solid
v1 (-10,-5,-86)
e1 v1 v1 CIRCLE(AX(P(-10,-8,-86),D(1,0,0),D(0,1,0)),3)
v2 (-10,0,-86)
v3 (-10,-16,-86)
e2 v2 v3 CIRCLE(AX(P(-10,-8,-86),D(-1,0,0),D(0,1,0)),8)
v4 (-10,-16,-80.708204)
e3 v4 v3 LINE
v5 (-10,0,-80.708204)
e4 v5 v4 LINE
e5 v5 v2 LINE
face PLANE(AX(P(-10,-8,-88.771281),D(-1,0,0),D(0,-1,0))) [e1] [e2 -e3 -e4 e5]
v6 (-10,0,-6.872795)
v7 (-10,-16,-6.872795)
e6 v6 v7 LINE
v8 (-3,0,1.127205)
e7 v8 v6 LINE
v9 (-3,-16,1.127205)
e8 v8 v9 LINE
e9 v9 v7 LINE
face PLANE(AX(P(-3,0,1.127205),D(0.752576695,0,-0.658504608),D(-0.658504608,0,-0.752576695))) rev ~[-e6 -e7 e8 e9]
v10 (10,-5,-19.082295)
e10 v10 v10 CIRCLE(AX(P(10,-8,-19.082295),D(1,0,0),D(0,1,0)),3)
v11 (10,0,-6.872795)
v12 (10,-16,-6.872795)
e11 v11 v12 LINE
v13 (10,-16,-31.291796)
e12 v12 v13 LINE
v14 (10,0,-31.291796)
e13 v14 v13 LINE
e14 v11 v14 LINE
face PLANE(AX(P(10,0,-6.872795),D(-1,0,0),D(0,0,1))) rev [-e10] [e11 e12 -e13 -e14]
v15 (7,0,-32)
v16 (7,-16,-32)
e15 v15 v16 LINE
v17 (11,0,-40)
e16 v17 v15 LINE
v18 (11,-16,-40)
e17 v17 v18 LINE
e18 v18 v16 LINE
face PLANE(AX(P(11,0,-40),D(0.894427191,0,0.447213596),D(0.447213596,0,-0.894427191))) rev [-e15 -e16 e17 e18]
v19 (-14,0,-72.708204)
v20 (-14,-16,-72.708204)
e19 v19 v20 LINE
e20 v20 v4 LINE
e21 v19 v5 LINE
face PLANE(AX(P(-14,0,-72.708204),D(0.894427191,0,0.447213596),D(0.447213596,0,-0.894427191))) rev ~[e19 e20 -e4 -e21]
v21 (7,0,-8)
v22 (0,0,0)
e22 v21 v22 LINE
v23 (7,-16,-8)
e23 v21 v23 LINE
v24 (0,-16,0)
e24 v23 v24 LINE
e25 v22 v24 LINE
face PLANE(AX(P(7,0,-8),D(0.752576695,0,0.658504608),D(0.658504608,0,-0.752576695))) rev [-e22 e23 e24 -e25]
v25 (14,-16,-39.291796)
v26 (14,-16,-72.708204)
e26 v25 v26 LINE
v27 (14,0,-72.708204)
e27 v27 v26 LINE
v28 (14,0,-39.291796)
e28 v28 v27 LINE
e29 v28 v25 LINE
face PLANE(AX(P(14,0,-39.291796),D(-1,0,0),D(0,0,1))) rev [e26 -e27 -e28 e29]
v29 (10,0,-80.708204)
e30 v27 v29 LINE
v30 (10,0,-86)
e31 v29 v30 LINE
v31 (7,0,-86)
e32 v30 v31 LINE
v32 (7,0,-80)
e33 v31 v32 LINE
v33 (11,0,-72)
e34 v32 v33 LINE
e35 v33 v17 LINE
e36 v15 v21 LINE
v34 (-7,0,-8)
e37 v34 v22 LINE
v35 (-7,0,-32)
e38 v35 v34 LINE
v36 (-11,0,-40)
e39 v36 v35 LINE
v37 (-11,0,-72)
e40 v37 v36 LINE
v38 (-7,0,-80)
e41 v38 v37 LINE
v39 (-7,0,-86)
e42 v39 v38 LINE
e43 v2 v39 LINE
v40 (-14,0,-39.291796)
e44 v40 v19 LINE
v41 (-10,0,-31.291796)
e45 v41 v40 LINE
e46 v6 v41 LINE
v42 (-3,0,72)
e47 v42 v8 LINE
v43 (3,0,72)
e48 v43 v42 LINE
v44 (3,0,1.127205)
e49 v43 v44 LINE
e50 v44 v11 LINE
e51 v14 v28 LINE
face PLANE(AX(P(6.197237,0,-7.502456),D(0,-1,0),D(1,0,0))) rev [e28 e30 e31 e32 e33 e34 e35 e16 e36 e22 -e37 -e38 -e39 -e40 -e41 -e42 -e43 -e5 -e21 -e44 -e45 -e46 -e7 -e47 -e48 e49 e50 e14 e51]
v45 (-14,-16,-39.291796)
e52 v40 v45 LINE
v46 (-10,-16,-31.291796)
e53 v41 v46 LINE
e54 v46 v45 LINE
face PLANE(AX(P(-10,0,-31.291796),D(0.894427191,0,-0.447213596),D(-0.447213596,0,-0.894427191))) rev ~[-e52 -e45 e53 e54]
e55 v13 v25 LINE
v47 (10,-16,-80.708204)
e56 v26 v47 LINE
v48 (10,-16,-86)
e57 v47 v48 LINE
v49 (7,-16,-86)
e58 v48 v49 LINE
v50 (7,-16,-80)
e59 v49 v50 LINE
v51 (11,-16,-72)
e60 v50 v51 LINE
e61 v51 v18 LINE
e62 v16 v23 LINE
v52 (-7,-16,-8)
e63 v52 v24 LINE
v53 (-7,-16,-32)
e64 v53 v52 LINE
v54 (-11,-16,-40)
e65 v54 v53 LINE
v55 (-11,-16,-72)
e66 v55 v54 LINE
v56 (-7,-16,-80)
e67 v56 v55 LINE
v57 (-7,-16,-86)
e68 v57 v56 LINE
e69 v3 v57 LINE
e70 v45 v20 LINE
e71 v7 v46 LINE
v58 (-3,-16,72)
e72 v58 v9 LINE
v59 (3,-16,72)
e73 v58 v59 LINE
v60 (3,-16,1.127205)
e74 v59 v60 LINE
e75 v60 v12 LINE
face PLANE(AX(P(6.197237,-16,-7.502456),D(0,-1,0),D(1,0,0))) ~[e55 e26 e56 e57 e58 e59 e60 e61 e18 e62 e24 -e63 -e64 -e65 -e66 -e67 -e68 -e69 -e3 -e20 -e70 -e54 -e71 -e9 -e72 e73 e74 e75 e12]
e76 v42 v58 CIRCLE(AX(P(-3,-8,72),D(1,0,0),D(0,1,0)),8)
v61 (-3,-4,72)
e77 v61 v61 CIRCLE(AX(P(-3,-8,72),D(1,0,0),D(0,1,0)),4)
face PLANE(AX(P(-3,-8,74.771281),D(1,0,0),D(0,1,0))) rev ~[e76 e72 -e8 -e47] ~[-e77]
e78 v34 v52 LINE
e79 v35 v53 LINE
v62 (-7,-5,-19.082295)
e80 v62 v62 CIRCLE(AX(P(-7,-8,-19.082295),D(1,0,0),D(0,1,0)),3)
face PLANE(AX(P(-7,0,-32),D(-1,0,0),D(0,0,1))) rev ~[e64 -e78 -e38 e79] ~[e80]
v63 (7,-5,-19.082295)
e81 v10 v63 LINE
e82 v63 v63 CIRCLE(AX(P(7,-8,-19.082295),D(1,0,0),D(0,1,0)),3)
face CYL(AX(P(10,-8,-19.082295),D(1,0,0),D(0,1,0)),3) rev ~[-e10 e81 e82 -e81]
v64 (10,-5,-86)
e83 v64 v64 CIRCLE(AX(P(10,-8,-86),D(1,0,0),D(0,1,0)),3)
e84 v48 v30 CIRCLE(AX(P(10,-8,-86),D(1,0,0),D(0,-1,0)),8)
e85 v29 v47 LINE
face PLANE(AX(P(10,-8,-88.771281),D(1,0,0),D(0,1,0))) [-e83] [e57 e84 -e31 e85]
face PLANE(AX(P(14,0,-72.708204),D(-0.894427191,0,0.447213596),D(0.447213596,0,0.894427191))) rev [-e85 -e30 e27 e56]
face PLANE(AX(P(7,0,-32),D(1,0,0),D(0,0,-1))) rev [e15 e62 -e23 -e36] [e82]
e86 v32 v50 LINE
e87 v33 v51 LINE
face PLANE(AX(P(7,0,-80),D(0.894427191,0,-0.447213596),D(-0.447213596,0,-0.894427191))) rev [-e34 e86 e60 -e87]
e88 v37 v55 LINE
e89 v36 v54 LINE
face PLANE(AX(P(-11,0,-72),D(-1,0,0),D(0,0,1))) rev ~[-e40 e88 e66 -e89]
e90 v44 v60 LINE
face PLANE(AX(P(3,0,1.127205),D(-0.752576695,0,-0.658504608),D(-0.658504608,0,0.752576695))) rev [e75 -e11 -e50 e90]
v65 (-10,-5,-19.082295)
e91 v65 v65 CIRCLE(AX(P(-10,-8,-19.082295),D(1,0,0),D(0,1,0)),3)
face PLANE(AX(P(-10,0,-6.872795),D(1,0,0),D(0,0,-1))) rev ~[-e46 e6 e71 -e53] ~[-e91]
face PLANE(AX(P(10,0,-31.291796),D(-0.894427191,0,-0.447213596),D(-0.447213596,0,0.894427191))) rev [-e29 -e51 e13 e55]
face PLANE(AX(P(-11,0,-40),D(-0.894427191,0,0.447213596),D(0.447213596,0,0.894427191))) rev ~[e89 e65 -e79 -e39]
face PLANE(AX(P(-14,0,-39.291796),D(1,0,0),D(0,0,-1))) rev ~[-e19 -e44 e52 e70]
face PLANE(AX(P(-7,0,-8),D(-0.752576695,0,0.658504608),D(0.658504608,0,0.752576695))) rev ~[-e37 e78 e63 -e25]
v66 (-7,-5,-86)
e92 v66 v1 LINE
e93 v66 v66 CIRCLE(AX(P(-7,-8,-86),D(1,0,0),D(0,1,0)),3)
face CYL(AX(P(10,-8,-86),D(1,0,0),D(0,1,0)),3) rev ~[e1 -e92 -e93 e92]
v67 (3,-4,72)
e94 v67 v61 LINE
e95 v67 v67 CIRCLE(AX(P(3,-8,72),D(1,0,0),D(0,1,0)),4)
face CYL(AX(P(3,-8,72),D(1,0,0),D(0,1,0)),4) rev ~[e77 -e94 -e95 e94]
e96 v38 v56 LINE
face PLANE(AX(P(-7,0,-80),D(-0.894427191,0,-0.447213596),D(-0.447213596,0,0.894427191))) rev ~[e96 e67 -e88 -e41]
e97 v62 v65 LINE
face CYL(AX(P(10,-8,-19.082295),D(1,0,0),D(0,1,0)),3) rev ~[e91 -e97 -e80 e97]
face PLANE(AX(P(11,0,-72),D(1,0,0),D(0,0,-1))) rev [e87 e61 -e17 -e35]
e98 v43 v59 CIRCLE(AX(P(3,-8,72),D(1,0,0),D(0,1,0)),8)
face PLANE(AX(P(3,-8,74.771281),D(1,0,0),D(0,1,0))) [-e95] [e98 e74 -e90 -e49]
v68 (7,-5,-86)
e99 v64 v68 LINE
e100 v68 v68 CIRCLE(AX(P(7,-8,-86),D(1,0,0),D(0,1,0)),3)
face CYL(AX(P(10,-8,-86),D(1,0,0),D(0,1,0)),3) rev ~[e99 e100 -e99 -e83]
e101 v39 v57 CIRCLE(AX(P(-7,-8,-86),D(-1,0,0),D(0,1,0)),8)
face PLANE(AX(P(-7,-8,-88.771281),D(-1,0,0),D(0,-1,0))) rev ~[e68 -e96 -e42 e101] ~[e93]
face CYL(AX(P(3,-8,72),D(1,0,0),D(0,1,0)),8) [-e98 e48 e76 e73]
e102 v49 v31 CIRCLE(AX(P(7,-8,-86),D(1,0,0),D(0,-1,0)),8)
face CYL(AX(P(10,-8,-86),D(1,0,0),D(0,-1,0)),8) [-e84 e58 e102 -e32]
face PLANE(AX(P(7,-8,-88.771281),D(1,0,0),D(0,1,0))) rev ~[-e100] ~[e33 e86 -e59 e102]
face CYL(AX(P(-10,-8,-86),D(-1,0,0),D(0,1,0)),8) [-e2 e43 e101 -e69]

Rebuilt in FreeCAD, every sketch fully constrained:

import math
import FreeCAD as App
import Part
import Sketcher

V = App.Vector
Q = App.Units.Quantity

doc = App.newDocument("Part")
body = doc.addObject("PartDesign::Body", "Body")

sketch1 = body.newObject("Sketcher::SketchObject", "Sketch")
sketch1.AttachmentSupport = (doc.getObject("XZ_Plane"), [""])
sketch1.MapMode = "FlatFace"
sketch1.addGeometry(Part.LineSegment(V(0, 0, 0), V(0, 72, 0)), False)
sketch1.addGeometry(Part.LineSegment(V(0, 72, 0), V(-3, 72, 0)), False)
sketch1.addGeometry(Part.LineSegment(V(-3, 72, 0), V(-3, 1.127205, 0)), False)
sketch1.addGeometry(Part.LineSegment(V(-3, 1.127205, 0), V(-10, -6.872795, 0)), False)
sketch1.addGeometry(Part.LineSegment(V(-10, -6.872795, 0), V(-10, -31.291796, 0)), False)
sketch1.addGeometry(Part.LineSegment(V(-10, -31.291796, 0), V(-14, -39.291796, 0)), False)
sketch1.addGeometry(Part.LineSegment(V(-14, -39.291796, 0), V(-14, -72.708204, 0)), False)
sketch1.addGeometry(Part.LineSegment(V(-14, -72.708204, 0), V(-10, -80.708204, 0)), False)
sketch1.addGeometry(Part.LineSegment(V(-10, -80.708204, 0), V(-10, -86, 0)), False)
sketch1.addGeometry(Part.LineSegment(V(-10, -86, 0), V(-7, -86, 0)), False)
sketch1.addGeometry(Part.LineSegment(V(-7, -86, 0), V(-7, -80, 0)), False)
sketch1.addGeometry(Part.LineSegment(V(-7, -80, 0), V(-11, -72, 0)), False)
sketch1.addGeometry(Part.LineSegment(V(-11, -72, 0), V(-11, -40, 0)), False)
sketch1.addGeometry(Part.LineSegment(V(-11, -40, 0), V(-7, -32, 0)), False)
sketch1.addGeometry(Part.LineSegment(V(-7, -32, 0), V(-7, -8, 0)), False)
sketch1.addGeometry(Part.LineSegment(V(-7, -8, 0), V(0, 0, 0)), False)
sketch1.addConstraint(Sketcher.Constraint("Coincident", 0, 2, 1, 1))
sketch1.addConstraint(Sketcher.Constraint("Coincident", 1, 2, 2, 1))
sketch1.addConstraint(Sketcher.Constraint("Coincident", 2, 2, 3, 1))
sketch1.addConstraint(Sketcher.Constraint("Coincident", 3, 2, 4, 1))
sketch1.addConstraint(Sketcher.Constraint("Coincident", 4, 2, 5, 1))
sketch1.addConstraint(Sketcher.Constraint("Coincident", 5, 2, 6, 1))
sketch1.addConstraint(Sketcher.Constraint("Coincident", 6, 2, 7, 1))
sketch1.addConstraint(Sketcher.Constraint("Coincident", 7, 2, 8, 1))
sketch1.addConstraint(Sketcher.Constraint("Coincident", 8, 2, 9, 1))
sketch1.addConstraint(Sketcher.Constraint("Coincident", 9, 2, 10, 1))
sketch1.addConstraint(Sketcher.Constraint("Coincident", 10, 2, 11, 1))
sketch1.addConstraint(Sketcher.Constraint("Coincident", 11, 2, 12, 1))
sketch1.addConstraint(Sketcher.Constraint("Coincident", 12, 2, 13, 1))
sketch1.addConstraint(Sketcher.Constraint("Coincident", 13, 2, 14, 1))
sketch1.addConstraint(Sketcher.Constraint("Coincident", 14, 2, 15, 1))
sketch1.addConstraint(Sketcher.Constraint("Coincident", 15, 2, 0, 1))
sketch1.addConstraint(Sketcher.Constraint("Vertical", 0))
sketch1.addConstraint(Sketcher.Constraint("Horizontal", 1))
sketch1.addConstraint(Sketcher.Constraint("Vertical", 2))
sketch1.addConstraint(Sketcher.Constraint("Vertical", 4))
sketch1.addConstraint(Sketcher.Constraint("Vertical", 6))
sketch1.addConstraint(Sketcher.Constraint("Vertical", 8))
sketch1.addConstraint(Sketcher.Constraint("Horizontal", 9))
sketch1.addConstraint(Sketcher.Constraint("Vertical", 10))
sketch1.addConstraint(Sketcher.Constraint("Vertical", 12))
sketch1.addConstraint(Sketcher.Constraint("Vertical", 14))
sketch1.addConstraint(Sketcher.Constraint("Coincident", 15, 2, -1, 1))
sketch1.addConstraint(Sketcher.Constraint("Parallel", 7, 11))
sketch1.addConstraint(Sketcher.Constraint("Parallel", 5, 13))
sketch1.addConstraint(Sketcher.Constraint("Parallel", 3, 15))
sketch1.addConstraint(Sketcher.Constraint("Vertical", 4, 2, 7, 2))
sketch1.addConstraint(Sketcher.Constraint("Vertical", 10, 2, 13, 2))
sketch1.addConstraint(Sketcher.Constraint("Equal", 1, 9))
sketch1.addConstraint(Sketcher.Constraint("Equal", 5, 7))
sketch1.addConstraint(Sketcher.Constraint("Equal", 7, 11))
sketch1.addConstraint(Sketcher.Constraint("DistanceX", 1, 2, 1, 1, Q("3 mm")))
sketch1.addConstraint(Sketcher.Constraint("DistanceY", 0, 1, 0, 2, Q("72 mm")))
sketch1.addConstraint(Sketcher.Constraint("DistanceY", 10, 1, 10, 2, Q("6 mm")))
sketch1.addConstraint(Sketcher.Constraint("DistanceY", 12, 1, 12, 2, Q("32 mm")))
sketch1.addConstraint(Sketcher.Constraint("DistanceY", 14, 1, 14, 2, Q("24 mm")))
sketch1.addConstraint(Sketcher.Constraint("DistanceX", 3, 2, -1, 1, Q("10 mm")))
sketch1.addConstraint(Sketcher.Constraint("DistanceX", 5, 2, -1, 1, Q("14 mm")))
sketch1.addConstraint(Sketcher.Constraint("DistanceY", 8, 2, -1, 1, Q("86 mm")))
sketch1.addConstraint(Sketcher.Constraint("DistanceY", 11, 2, -1, 1, Q("72 mm")))
sketch1.addConstraint(Sketcher.Constraint("DistanceY", 4, 2, 4, 1, Q("24.419001 mm")))
sketch1.addConstraint(Sketcher.Constraint("DistanceY", 2, 2, 2, 1, Q("70.872795 mm")))
sketch1.addConstraint(Sketcher.Constraint("DistanceY", 6, 2, 6, 1, Q("33.416408 mm")))
pad1 = body.newObject("PartDesign::Pad", "Pad")
pad1.Profile = sketch1
pad1.Length = 16
body2 = doc.addObject("PartDesign::Body", "Body001")
doc.recompute()

body2.BaseFeature = body
doc.recompute()

mirroring = doc.addObject("Part::Mirroring", "Mirroring")
mirroring.Source = body
mirroring.Base = V(0, 0, 0)
mirroring.Normal = V(1, 0, 0)
body3 = doc.addObject("PartDesign::Body", "Body002")
body3.BaseFeature = mirroring
boolean = body2.newObject("PartDesign::Boolean", "Boolean")
boolean.Type = "Fuse"
boolean.addObjects([body3])
doc.recompute()

sketch2 = body2.newObject("Sketcher::SketchObject", "Sketch001")
sketch2.AttachmentSupport = (doc.getObject("YZ_Plane001"), [""])
sketch2.MapMode = "FlatFace"
sketch2.AttachmentOffset = App.Placement(V(0, 0, 3), App.Rotation())
sketch2.addGeometry(Part.LineSegment(V(-16, 72, 0), V(0, 72, 0)), False)
sketch2.addGeometry(Part.ArcOfCircle(Part.Circle(V(-8, 72, 0), V(0, 0, 1), 8), math.radians(0), math.radians(180)), False)
sketch2.addConstraint(Sketcher.Constraint("Coincident", 0, 1, 1, 2))
sketch2.addConstraint(Sketcher.Constraint("Coincident", 1, 1, 0, 2))
sketch2.addConstraint(Sketcher.Constraint("Horizontal", 0))
sketch2.addConstraint(Sketcher.Constraint("PointOnObject", 1, 1, -2))
sketch2.addConstraint(Sketcher.Constraint("Horizontal", 1, 3, 0, 1))
sketch2.addConstraint(Sketcher.Constraint("Radius", 1, Q("8 mm")))
sketch2.addConstraint(Sketcher.Constraint("DistanceY", -1, 1, 1, 3, Q("72 mm")))
pad2 = body2.newObject("PartDesign::Pad", "Pad001")
pad2.Profile = sketch2
pad2.Length = 6
pad2.Reversed = True

sketch3 = body2.newObject("Sketcher::SketchObject", "Sketch002")
sketch3.AttachmentSupport = (doc.getObject("YZ_Plane001"), [""])
sketch3.MapMode = "FlatFace"
sketch3.AttachmentOffset = App.Placement(V(0, 0, -10), App.Rotation())
sketch3.addGeometry(Part.LineSegment(V(-16, -86, 0), V(0, -86, 0)), False)
sketch3.addGeometry(Part.ArcOfCircle(Part.Circle(V(-8, -86, 0), V(0, 0, 1), 8), math.radians(180), math.radians(360)), False)
sketch3.addConstraint(Sketcher.Constraint("Coincident", 0, 1, 1, 1))
sketch3.addConstraint(Sketcher.Constraint("Coincident", 1, 2, 0, 2))
sketch3.addConstraint(Sketcher.Constraint("Horizontal", 0))
sketch3.addConstraint(Sketcher.Constraint("PointOnObject", 1, 2, -2))
sketch3.addConstraint(Sketcher.Constraint("Horizontal", 1, 3, 0, 1))
sketch3.addConstraint(Sketcher.Constraint("Radius", 1, Q("8 mm")))
sketch3.addConstraint(Sketcher.Constraint("DistanceY", 1, 3, -1, 1, Q("86 mm")))
pad3 = body2.newObject("PartDesign::Pad", "Pad002")
pad3.Profile = sketch3
pad3.Length = 3

sketch4 = body2.newObject("Sketcher::SketchObject", "Sketch003")
sketch4.AttachmentSupport = (doc.getObject("YZ_Plane001"), [""])
sketch4.MapMode = "FlatFace"
sketch4.AttachmentOffset = App.Placement(V(0, 0, 10), App.Rotation())
sketch4.addGeometry(Part.LineSegment(V(0, -86, 0), V(-16, -86, 0)), False)
sketch4.addGeometry(Part.ArcOfCircle(Part.Circle(V(-8, -86, 0), V(0, 0, 1), 8), math.radians(180), math.radians(360)), False)
sketch4.addConstraint(Sketcher.Constraint("Coincident", 0, 1, 1, 2))
sketch4.addConstraint(Sketcher.Constraint("Coincident", 1, 1, 0, 2))
sketch4.addConstraint(Sketcher.Constraint("Horizontal", 0))
sketch4.addConstraint(Sketcher.Constraint("PointOnObject", 0, 1, -2))
sketch4.addConstraint(Sketcher.Constraint("Horizontal", 1, 3, 0, 1))
sketch4.addConstraint(Sketcher.Constraint("Radius", 1, Q("8 mm")))
sketch4.addConstraint(Sketcher.Constraint("DistanceY", 1, 3, -1, 1, Q("86 mm")))
pad4 = body2.newObject("PartDesign::Pad", "Pad003")
pad4.Profile = sketch4
pad4.Length = 3
pad4.Reversed = True

sketch5 = body2.newObject("Sketcher::SketchObject", "Sketch004")
sketch5.AttachmentSupport = (doc.getObject("YZ_Plane001"), [""])
sketch5.MapMode = "FlatFace"
sketch5.AttachmentOffset = App.Placement(V(0, 0, 3), App.Rotation())
sketch5.addGeometry(Part.Circle(V(-8, 72, 0), V(0, 0, 1), 4), False)
sketch5.addConstraint(Sketcher.Constraint("Diameter", 0, Q("8 mm")))
sketch5.addConstraint(Sketcher.Constraint("DistanceX", 0, 3, -1, 1, Q("8 mm")))
sketch5.addConstraint(Sketcher.Constraint("DistanceY", -1, 1, 0, 3, Q("72 mm")))
pocket1 = body2.newObject("PartDesign::Pocket", "Pocket")
pocket1.Profile = sketch5
pocket1.Length = 25

sketch6 = body2.newObject("Sketcher::SketchObject", "Sketch005")
sketch6.AttachmentSupport = (doc.getObject("YZ_Plane001"), [""])
sketch6.MapMode = "FlatFace"
sketch6.AttachmentOffset = App.Placement(V(0, 0, 10), App.Rotation())
sketch6.addGeometry(Part.Circle(V(-8, -19.082295, 0), V(0, 0, 1), 3), False)
sketch6.addConstraint(Sketcher.Constraint("Diameter", 0, Q("6 mm")))
sketch6.addConstraint(Sketcher.Constraint("DistanceX", 0, 3, -1, 1, Q("8 mm")))
sketch6.addConstraint(Sketcher.Constraint("DistanceY", 0, 3, -1, 1, Q("19.082295 mm")))
pocket2 = body2.newObject("PartDesign::Pocket", "Pocket001")
pocket2.Profile = sketch6
pocket2.Length = 50

sketch7 = body2.newObject("Sketcher::SketchObject", "Sketch006")
sketch7.AttachmentSupport = (doc.getObject("YZ_Plane001"), [""])
sketch7.MapMode = "FlatFace"
sketch7.AttachmentOffset = App.Placement(V(0, 0, 10), App.Rotation())
sketch7.addGeometry(Part.Circle(V(-8, -86, 0), V(0, 0, 1), 3), False)
sketch7.addConstraint(Sketcher.Constraint("Diameter", 0, Q("6 mm")))
sketch7.addConstraint(Sketcher.Constraint("DistanceX", 0, 3, -1, 1, Q("8 mm")))
sketch7.addConstraint(Sketcher.Constraint("DistanceY", 0, 3, -1, 1, Q("86 mm")))
pocket3 = body2.newObject("PartDesign::Pocket", "Pocket002")
pocket3.Profile = sketch7
pocket3.Length = 50
mirroring.Visibility = False

doc.recompute()
